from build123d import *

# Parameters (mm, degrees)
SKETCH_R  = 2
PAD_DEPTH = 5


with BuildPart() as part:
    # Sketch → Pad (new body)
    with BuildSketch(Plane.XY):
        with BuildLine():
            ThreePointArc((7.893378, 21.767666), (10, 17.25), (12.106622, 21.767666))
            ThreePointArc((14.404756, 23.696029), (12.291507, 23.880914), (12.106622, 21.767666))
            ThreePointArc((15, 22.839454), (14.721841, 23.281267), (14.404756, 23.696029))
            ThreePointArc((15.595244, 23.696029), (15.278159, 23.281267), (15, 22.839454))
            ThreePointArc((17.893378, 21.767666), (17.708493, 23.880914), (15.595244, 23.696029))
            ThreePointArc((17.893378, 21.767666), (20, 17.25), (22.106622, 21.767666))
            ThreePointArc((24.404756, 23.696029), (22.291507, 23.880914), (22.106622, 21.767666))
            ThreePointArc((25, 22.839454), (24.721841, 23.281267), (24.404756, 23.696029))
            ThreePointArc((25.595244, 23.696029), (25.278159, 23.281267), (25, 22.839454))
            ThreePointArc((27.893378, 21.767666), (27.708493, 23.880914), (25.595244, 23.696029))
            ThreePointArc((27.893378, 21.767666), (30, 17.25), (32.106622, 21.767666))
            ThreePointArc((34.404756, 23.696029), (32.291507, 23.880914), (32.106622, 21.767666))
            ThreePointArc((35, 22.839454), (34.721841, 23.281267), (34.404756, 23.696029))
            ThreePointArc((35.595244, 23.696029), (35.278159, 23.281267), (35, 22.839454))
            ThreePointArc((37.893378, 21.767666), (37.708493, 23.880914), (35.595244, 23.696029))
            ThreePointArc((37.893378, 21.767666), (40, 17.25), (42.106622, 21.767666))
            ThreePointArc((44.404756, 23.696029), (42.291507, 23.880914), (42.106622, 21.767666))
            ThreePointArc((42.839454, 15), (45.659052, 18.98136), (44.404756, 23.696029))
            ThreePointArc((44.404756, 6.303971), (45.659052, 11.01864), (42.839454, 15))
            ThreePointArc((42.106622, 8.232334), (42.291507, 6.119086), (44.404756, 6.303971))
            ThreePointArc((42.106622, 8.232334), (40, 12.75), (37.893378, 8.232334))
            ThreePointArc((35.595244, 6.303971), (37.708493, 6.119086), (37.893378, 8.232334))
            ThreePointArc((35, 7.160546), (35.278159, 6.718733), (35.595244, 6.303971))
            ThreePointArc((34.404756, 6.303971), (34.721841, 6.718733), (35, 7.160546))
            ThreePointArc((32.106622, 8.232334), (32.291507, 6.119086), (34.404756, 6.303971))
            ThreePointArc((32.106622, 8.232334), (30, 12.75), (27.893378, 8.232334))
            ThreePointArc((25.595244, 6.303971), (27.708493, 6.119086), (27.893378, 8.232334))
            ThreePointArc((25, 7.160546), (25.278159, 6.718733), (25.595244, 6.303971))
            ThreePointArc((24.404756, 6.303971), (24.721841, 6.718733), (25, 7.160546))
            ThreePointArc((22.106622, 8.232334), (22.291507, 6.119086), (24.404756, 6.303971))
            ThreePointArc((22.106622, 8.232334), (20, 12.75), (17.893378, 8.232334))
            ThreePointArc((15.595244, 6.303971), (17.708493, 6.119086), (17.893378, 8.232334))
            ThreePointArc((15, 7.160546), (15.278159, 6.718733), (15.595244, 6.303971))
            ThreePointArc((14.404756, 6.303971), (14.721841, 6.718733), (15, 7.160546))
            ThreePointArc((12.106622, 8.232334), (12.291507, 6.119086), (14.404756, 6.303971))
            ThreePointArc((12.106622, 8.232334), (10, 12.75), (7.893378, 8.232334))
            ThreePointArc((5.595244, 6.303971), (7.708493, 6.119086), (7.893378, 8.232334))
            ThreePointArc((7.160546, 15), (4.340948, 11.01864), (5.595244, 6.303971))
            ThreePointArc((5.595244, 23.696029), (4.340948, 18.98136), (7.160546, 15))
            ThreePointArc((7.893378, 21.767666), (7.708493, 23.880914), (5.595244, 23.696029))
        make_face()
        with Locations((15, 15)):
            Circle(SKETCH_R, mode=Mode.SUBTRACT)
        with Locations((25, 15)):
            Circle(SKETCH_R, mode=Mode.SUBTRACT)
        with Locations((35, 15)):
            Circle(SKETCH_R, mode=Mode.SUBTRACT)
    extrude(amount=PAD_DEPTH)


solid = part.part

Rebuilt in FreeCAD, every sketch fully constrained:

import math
import FreeCAD as App
import Part
import Sketcher
from FreeCAD import Vector

doc = App.newDocument("Part")
body = doc.addObject("PartDesign::Body", "Body")

# Sketch on XY plane
sketch1 = doc.addObject("Sketcher::SketchObject", "Sketch")
body.addObject(sketch1)
sketch1.AttachmentSupport = (doc.XY_Plane, [""])
sketch1.MapMode = "FlatFace"
sketch1.addGeometry([
    Part.ArcOfCircle(Part.Circle(Vector(10, 20, 0), Vector(0, 0, 1), 2.7), math.radians(140), math.radians(400)),  # 0
    Part.ArcOfCircle(Part.Circle(Vector(6.7, 22.7, 0), Vector(0, 0, 1), 1.5), math.radians(-40), math.radians(140)),  # 1
    Part.ArcOfCircle(Part.Circle(Vector(10, 20, 0), Vector(0, 0, 1), 5.8), math.radians(140), math.radians(240)),  # 2
    Part.ArcOfCircle(Part.Circle(Vector(10, 10, 0), Vector(0, 0, 1), 5.8), math.radians(120), math.radians(220)),  # 3
    Part.ArcOfCircle(Part.Circle(Vector(6.7, 7.3, 0), Vector(0, 0, 1), 1.5), math.radians(-140), math.radians(40)),  # 4
    Part.ArcOfCircle(Part.Circle(Vector(10, 10, 0), Vector(0, 0, 1), 2.7), math.radians(-40), math.radians(220)),  # 5
    Part.ArcOfCircle(Part.Circle(Vector(13.3, 7.3, 0), Vector(0, 0, 1), 1.5), math.radians(140), math.radians(320)),  # 6
    Part.ArcOfCircle(Part.Circle(Vector(10, 10, 0), Vector(0, 0, 1), 5.8), math.radians(-40), math.radians(-29.59)),  # 7
    Part.ArcOfCircle(Part.Circle(Vector(20, 10, 0), Vector(0, 0, 1), 5.8), math.radians(-150.41), math.radians(-140)),  # 8
    Part.ArcOfCircle(Part.Circle(Vector(16.7, 7.3, 0), Vector(0, 0, 1), 1.5), math.radians(-140), math.radians(40)),  # 9
    Part.ArcOfCircle(Part.Circle(Vector(20, 10, 0), Vector(0, 0, 1), 2.7), math.radians(-40), math.radians(220)),  # 10
    Part.ArcOfCircle(Part.Circle(Vector(23.3, 7.3, 0), Vector(0, 0, 1), 1.5), math.radians(140), math.radians(320)),  # 11
    Part.ArcOfCircle(Part.Circle(Vector(20, 10, 0), Vector(0, 0, 1), 5.8), math.radians(-40), math.radians(-29.59)),  # 12
    Part.ArcOfCircle(Part.Circle(Vector(30, 10, 0), Vector(0, 0, 1), 5.8), math.radians(-150.41), math.radians(-140)),  # 13
    Part.ArcOfCircle(Part.Circle(Vector(26.7, 7.3, 0), Vector(0, 0, 1), 1.5), math.radians(-140), math.radians(40)),  # 14
    Part.ArcOfCircle(Part.Circle(Vector(30, 10, 0), Vector(0, 0, 1), 2.7), math.radians(-40), math.radians(220)),  # 15
    Part.ArcOfCircle(Part.Circle(Vector(33.3, 7.3, 0), Vector(0, 0, 1), 1.5), math.radians(140), math.radians(320)),  # 16
    Part.ArcOfCircle(Part.Circle(Vector(30, 10, 0), Vector(0, 0, 1), 5.8), math.radians(-40), math.radians(-29.59)),  # 17
    Part.ArcOfCircle(Part.Circle(Vector(40, 10, 0), Vector(0, 0, 1), 5.8), math.radians(-150.41), math.radians(-140)),  # 18
    Part.ArcOfCircle(Part.Circle(Vector(36.7, 7.3, 0), Vector(0, 0, 1), 1.5), math.radians(-140), math.radians(40)),  # 19
    Part.ArcOfCircle(Part.Circle(Vector(40, 10, 0), Vector(0, 0, 1), 2.7), math.radians(-40), math.radians(220)),  # 20
    Part.ArcOfCircle(Part.Circle(Vector(43.3, 7.3, 0), Vector(0, 0, 1), 1.5), math.radians(140), math.radians(320)),  # 21
    Part.ArcOfCircle(Part.Circle(Vector(40, 10, 0), Vector(0, 0, 1), 5.8), math.radians(-40), math.radians(60)),  # 22
    Part.ArcOfCircle(Part.Circle(Vector(40, 20, 0), Vector(0, 0, 1), 5.8), math.radians(-60), math.radians(40)),  # 23
    Part.ArcOfCircle(Part.Circle(Vector(43.3, 22.7, 0), Vector(0, 0, 1), 1.5), math.radians(40), math.radians(220)),  # 24
    Part.ArcOfCircle(Part.Circle(Vector(40, 20, 0), Vector(0, 0, 1), 2.7), math.radians(140), math.radians(400)),  # 25
    Part.ArcOfCircle(Part.Circle(Vector(36.7, 22.7, 0), Vector(0, 0, 1), 1.5), math.radians(-40), math.radians(140)),  # 26
    Part.ArcOfCircle(Part.Circle(Vector(40, 20, 0), Vector(0, 0, 1), 5.8), math.radians(140), math.radians(150.41)),  # 27
    Part.ArcOfCircle(Part.Circle(Vector(30, 20, 0), Vector(0, 0, 1), 5.8), math.radians(29.59), math.radians(40)),  # 28
    Part.ArcOfCircle(Part.Circle(Vector(33.3, 22.7, 0), Vector(0, 0, 1), 1.5), math.radians(40), math.radians(220)),  # 29
    Part.ArcOfCircle(Part.Circle(Vector(30, 20, 0), Vector(0, 0, 1), 2.7), math.radians(140), math.radians(400)),  # 30
    Part.ArcOfCircle(Part.Circle(Vector(26.7, 22.7, 0), Vector(0, 0, 1), 1.5), math.radians(-40), math.radians(140)),  # 31
    Part.ArcOfCircle(Part.Circle(Vector(30, 20, 0), Vector(0, 0, 1), 5.8), math.radians(140), math.radians(150.41)),  # 32
    Part.ArcOfCircle(Part.Circle(Vector(20, 20, 0), Vector(0, 0, 1), 5.8), math.radians(29.59), math.radians(40)),  # 33
    Part.ArcOfCircle(Part.Circle(Vector(23.3, 22.7, 0), Vector(0, 0, 1), 1.5), math.radians(40), math.radians(220)),  # 34
    Part.ArcOfCircle(Part.Circle(Vector(20, 20, 0), Vector(0, 0, 1), 2.7), math.radians(140), math.radians(400)),  # 35
    Part.ArcOfCircle(Part.Circle(Vector(16.7, 22.7, 0), Vector(0, 0, 1), 1.5), math.radians(-40), math.radians(140)),  # 36
    Part.ArcOfCircle(Part.Circle(Vector(20, 20, 0), Vector(0, 0, 1), 5.8), math.radians(140), math.radians(150.41)),  # 37
    Part.ArcOfCircle(Part.Circle(Vector(10, 20, 0), Vector(0, 0, 1), 5.8), math.radians(29.59), math.radians(40)),  # 38
    Part.ArcOfCircle(Part.Circle(Vector(13.3, 22.7, 0), Vector(0, 0, 1), 1.5), math.radians(40), math.radians(220)),  # 39
    Part.Circle(Vector(35, 15, 0), Vector(0, 0, 1), 2),  # 40
    Part.Circle(Vector(25, 15, 0), Vector(0, 0, 1), 2),  # 41
    Part.Circle(Vector(15, 15, 0), Vector(0, 0, 1), 2),  # 42
], False)
sketch1.addConstraint([
    Sketcher.Constraint("Tangent", 0, 1, 1, 1),
    Sketcher.Constraint("Tangent", 1, 2, 2, 1),
    Sketcher.Constraint("Coincident", 2, 2, 3, 1),
    Sketcher.Constraint("Tangent", 3, 2, 4, 1),
    Sketcher.Constraint("Tangent", 4, 2, 5, 2),
    Sketcher.Constraint("Tangent", 5, 1, 6, 1),
    Sketcher.Constraint("Coincident", 6, 2, 7, 1),
    Sketcher.Constraint("Coincident", 7, 2, 8, 1),
    Sketcher.Constraint("Coincident", 8, 2, 9, 1),
    Sketcher.Constraint("Tangent", 9, 2, 10, 2),
    Sketcher.Constraint("Tangent", 10, 1, 11, 1),
    Sketcher.Constraint("Coincident", 11, 2, 12, 1),
    Sketcher.Constraint("Coincident", 12, 2, 13, 1),
    Sketcher.Constraint("Coincident", 13, 2, 14, 1),
    Sketcher.Constraint("Tangent", 14, 2, 15, 2),
    Sketcher.Constraint("Tangent", 15, 1, 16, 1),
    Sketcher.Constraint("Coincident", 16, 2, 17, 1),
    Sketcher.Constraint("Coincident", 17, 2, 18, 1),
    Sketcher.Constraint("Coincident", 18, 2, 19, 1),
    Sketcher.Constraint("Tangent", 19, 2, 20, 2),
    Sketcher.Constraint("Tangent", 20, 1, 21, 1),
    Sketcher.Constraint("Tangent", 21, 2, 22, 1),
    Sketcher.Constraint("Coincident", 22, 2, 23, 1),
    Sketcher.Constraint("Tangent", 23, 2, 24, 1),
    Sketcher.Constraint("Tangent", 24, 2, 25, 2),
    Sketcher.Constraint("Tangent", 25, 1, 26, 1),
    Sketcher.Constraint("Coincident", 26, 2, 27, 1),
    Sketcher.Constraint("Coincident", 27, 2, 28, 1),
    Sketcher.Constraint("Coincident", 28, 2, 29, 1),
    Sketcher.Constraint("Tangent", 29, 2, 30, 2),
    Sketcher.Constraint("Tangent", 30, 1, 31, 1),
    Sketcher.Constraint("Coincident", 31, 2, 32, 1),
    Sketcher.Constraint("Coincident", 32, 2, 33, 1),
    Sketcher.Constraint("Coincident", 33, 2, 34, 1),
    Sketcher.Constraint("Tangent", 34, 2, 35, 2),
    Sketcher.Constraint("Tangent", 35, 1, 36, 1),
    Sketcher.Constraint("Coincident", 36, 2, 37, 1),
    Sketcher.Constraint("Coincident", 37, 2, 38, 1),
    Sketcher.Constraint("Coincident", 38, 2, 39, 1),
    Sketcher.Constraint("Tangent", 39, 2, 0, 2),
    Sketcher.Constraint("Coincident", 2, 3, 0, 3),
    Sketcher.Constraint("Coincident", 5, 3, 3, 3),
    Sketcher.Constraint("Coincident", 22, 3, 20, 3),
    Sketcher.Constraint("Coincident", 25, 3, 23, 3),
    Sketcher.Constraint("Equal", 2, 3),
    Sketcher.Constraint("Equal", 1, 4),
    Sketcher.Constraint("Equal", 4, 6),
    Sketcher.Constraint("Equal", 7, 8),
    Sketcher.Constraint("Equal", 6, 9),
    Sketcher.Constraint("Equal", 5, 10),
    Sketcher.Constraint("Equal", 9, 11),
    Sketcher.Constraint("Equal", 8, 12),
    Sketcher.Constraint("Equal", 12, 13),
    Sketcher.Constraint("Equal", 11, 14),
    Sketcher.Constraint("Equal", 10, 15),
    Sketcher.Constraint("Equal", 14, 16),
    Sketcher.Constraint("Equal", 13, 17),
    Sketcher.Constraint("Equal", 17, 18),
    Sketcher.Constraint("Equal", 16, 19),
    Sketcher.Constraint("Equal", 15, 20),
    Sketcher.Constraint("Equal", 19, 21),
    Sketcher.Constraint("Equal", 22, 23),
    Sketcher.Constraint("Equal", 21, 24),
    Sketcher.Constraint("Equal", 24, 26),
    Sketcher.Constraint("Equal", 18, 27),
    Sketcher.Constraint("Equal", 27, 28),
    Sketcher.Constraint("Equal", 26, 29),
    Sketcher.Constraint("Equal", 25, 30),
    Sketcher.Constraint("Equal", 29, 31),
    Sketcher.Constraint("Equal", 28, 32),
    Sketcher.Constraint("Equal", 32, 33),
    Sketcher.Constraint("Equal", 31, 34),
    Sketcher.Constraint("Equal", 30, 35),
    Sketcher.Constraint("Equal", 34, 36),
    Sketcher.Constraint("Equal", 33, 37),
    Sketcher.Constraint("Equal", 37, 38),
    Sketcher.Constraint("Equal", 36, 39),
    Sketcher.Constraint("Equal", 40, 41),
    Sketcher.Constraint("Equal", 41, 42),
    Sketcher.Constraint("Horizontal", 4, 3, 6, 3),
    Sketcher.Constraint("Horizontal", 7, 3, 8, 3),
    Sketcher.Constraint("Horizontal", 6, 3, 9, 3),
    Sketcher.Constraint("Horizontal", 5, 3, 10, 3),
    Sketcher.Constraint("Horizontal", 9, 3, 11, 3),
    Sketcher.Constraint("Horizontal", 8, 3, 12, 3),
    Sketcher.Constraint("Horizontal", 12, 3, 13, 3),
    Sketcher.Constraint("Horizontal", 11, 3, 14, 3),
    Sketcher.Constraint("Horizontal", 10, 3, 15, 3),
    Sketcher.Constraint("Horizontal", 14, 3, 16, 3),
    Sketcher.Constraint("Horizontal", 13, 3, 17, 3),
    Sketcher.Constraint("Horizontal", 17, 3, 18, 3),
    Sketcher.Constraint("Horizontal", 16, 3, 19, 3),
    Sketcher.Constraint("Horizontal", 15, 3, 20, 3),
    Sketcher.Constraint("Horizontal", 19, 3, 21, 3),
    Sketcher.Constraint("Horizontal", 2, 3, 23, 3),
    Sketcher.Constraint("Horizontal", 1, 3, 24, 3),
    Sketcher.Constraint("Horizontal", 24, 3, 26, 3),
    Sketcher.Constraint("Horizontal", 27, 3, 28, 3),
    Sketcher.Constraint("Horizontal", 26, 3, 29, 3),
    Sketcher.Constraint("Horizontal", 25, 3, 30, 3),
    Sketcher.Constraint("Horizontal", 29, 3, 31, 3),
    Sketcher.Constraint("Horizontal", 28, 3, 32, 3),
    Sketcher.Constraint("Horizontal", 32, 3, 33, 3),
    Sketcher.Constraint("Horizontal", 31, 3, 34, 3),
    Sketcher.Constraint("Horizontal", 30, 3, 35, 3),
    Sketcher.Constraint("Horizontal", 34, 3, 36, 3),
    Sketcher.Constraint("Horizontal", 33, 3, 37, 3),
    Sketcher.Constraint("Horizontal", 37, 3, 38, 3),
    Sketcher.Constraint("Horizontal", 36, 3, 39, 3),
    Sketcher.Constraint("Horizontal", 40, 3, 41, 3),
    Sketcher.Constraint("Horizontal", 41, 3, 42, 3),
    Sketcher.Constraint("Horizontal", 42, 3, 2, 2),
    Sketcher.Constraint("Horizontal", 3, 2, 6, 2),
    Sketcher.Constraint("Horizontal", 6, 2, 8, 2),
    Sketcher.Constraint("Horizontal", 8, 2, 11, 2),
    Sketcher.Constraint("Horizontal", 7, 2, 12, 2),
    Sketcher.Constraint("Horizontal", 11, 2, 13, 2),
    Sketcher.Constraint("Horizontal", 13, 2, 16, 2),
    Sketcher.Constraint("Horizontal", 12, 2, 17, 2),
    Sketcher.Constraint("Horizontal", 16, 2, 18, 2),
    Sketcher.Constraint("Horizontal", 2, 2, 22, 2),
    Sketcher.Constraint("Horizontal", 23, 2, 26, 2),
    Sketcher.Constraint("Horizontal", 26, 2, 28, 2),
    Sketcher.Constraint("Horizontal", 28, 2, 31, 2),
    Sketcher.Constraint("Horizontal", 27, 2, 32, 2),
    Sketcher.Constraint("Horizontal", 31, 2, 33, 2),
    Sketcher.Constraint("Horizontal", 33, 2, 36, 2),
    Sketcher.Constraint("Horizontal", 32, 2, 37, 2),
    Sketcher.Constraint("Horizontal", 36, 2, 38, 2),
    Sketcher.Constraint("Vertical", 2, 3, 3, 3),
    Sketcher.Constraint("Vertical", 1, 3, 4, 3),
    Sketcher.Constraint("Vertical", 18, 3, 27, 3),
    Sketcher.Constraint("Vertical", 42, 3, 7, 2),
    Sketcher.Constraint("Vertical", 41, 3, 12, 2),
    Sketcher.Constraint("Vertical", 40, 3, 17, 2),
    Sketcher.Constraint("Diameter", 40, 4.0),
    Sketcher.Constraint("Radius", 1, 1.5),
    Sketcher.Constraint("Radius", 0, 2.75),
    Sketcher.Constraint("DistanceX", -1, 1, 0, 3, 10.0),
    Sketcher.Constraint("DistanceY", -1, 1, 0, 3, 20.0),
    Sketcher.Constraint("DistanceY", -1, 1, 3, 3, 9.999999),
    Sketcher.Constraint("DistanceX", -1, 1, 10, 3, 20.0),
    Sketcher.Constraint("Radius", 7, 5.750144),
    Sketcher.Constraint("DistanceX", -1, 1, 1, 3, 6.744311),
    Sketcher.Constraint("DistanceX", -1, 1, 7, 3, 9.99988),
])
pad1 = doc.addObject("PartDesign::Pad", "Pad")
body.addObject(pad1)
pad1.Profile = sketch1
pad1.Length = 5

doc.recompute()
